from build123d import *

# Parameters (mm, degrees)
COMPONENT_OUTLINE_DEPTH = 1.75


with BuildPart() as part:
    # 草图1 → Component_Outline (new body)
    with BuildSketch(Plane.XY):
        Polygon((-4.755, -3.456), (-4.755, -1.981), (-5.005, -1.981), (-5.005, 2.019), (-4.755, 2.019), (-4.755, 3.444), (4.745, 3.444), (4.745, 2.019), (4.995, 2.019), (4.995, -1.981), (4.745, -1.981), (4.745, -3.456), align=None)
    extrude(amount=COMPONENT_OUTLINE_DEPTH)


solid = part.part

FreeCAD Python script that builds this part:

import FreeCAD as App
import Part
import Sketcher

doc = App.newDocument("Part")
params = doc.addObject("Spreadsheet::Sheet", "Params")
for row, (alias, value) in enumerate([
    ("sketch1_height", "4 mm"),
    ("sketch1_width", "9.5 mm"),
    ("sketch1_width2", "0.25 mm"),
    ("pad1_length", "1.75 mm"),
], start=1):
    params.set(f"A{row}", alias)
    params.set(f"B{row}", "=" + value)
    params.setAlias(f"B{row}", alias)

body = doc.addObject("PartDesign::Body", "Body")

# Sketch on XY plane
sketch1 = body.newObject("Sketcher::SketchObject", "Sketch")
sketch1.AttachmentSupport = (doc.getObject("XY_Plane"), [""])
sketch1.MapMode = "FlatFace"
sketch1.addGeometry(Part.LineSegment(App.Vector(-4.75, -1.98, 0), App.Vector(-4.75, -3.46, 0)), False)
sketch1.addGeometry(Part.LineSegment(App.Vector(-4.75, -3.46, 0), App.Vector(4.75, -3.46, 0)), False)
sketch1.addGeometry(Part.LineSegment(App.Vector(4.75, -3.46, 0), App.Vector(4.75, -1.98, 0)), False)
sketch1.addGeometry(Part.LineSegment(App.Vector(4.75, -1.98, 0), App.Vector(5, -1.98, 0)), False)
sketch1.addGeometry(Part.LineSegment(App.Vector(5, -1.98, 0), App.Vector(5, 2.02, 0)), False)
sketch1.addGeometry(Part.LineSegment(App.Vector(5, 2.02, 0), App.Vector(4.75, 2.02, 0)), False)
sketch1.addGeometry(Part.LineSegment(App.Vector(4.75, 2.02, 0), App.Vector(4.75, 3.44, 0)), False)
sketch1.addGeometry(Part.LineSegment(App.Vector(4.75, 3.44, 0), App.Vector(-4.75, 3.44, 0)), False)
sketch1.addGeometry(Part.LineSegment(App.Vector(-4.75, 3.44, 0), App.Vector(-4.75, 2.02, 0)), False)
sketch1.addGeometry(Part.LineSegment(App.Vector(-4.75, 2.02, 0), App.Vector(-5, 2.02, 0)), False)
sketch1.addGeometry(Part.LineSegment(App.Vector(-5, 2.02, 0), App.Vector(-5, -1.98, 0)), False)
sketch1.addGeometry(Part.LineSegment(App.Vector(-5, -1.98, 0), App.Vector(-4.75, -1.98, 0)), False)
sketch1.addConstraint(Sketcher.Constraint("Coincident", 0, 2, 1, 1))
sketch1.addConstraint(Sketcher.Constraint("Coincident", 1, 2, 2, 1))
sketch1.addConstraint(Sketcher.Constraint("Coincident", 2, 2, 3, 1))
sketch1.addConstraint(Sketcher.Constraint("Coincident", 3, 2, 4, 1))
sketch1.addConstraint(Sketcher.Constraint("Coincident", 4, 2, 5, 1))
sketch1.addConstraint(Sketcher.Constraint("Coincident", 5, 2, 6, 1))
sketch1.addConstraint(Sketcher.Constraint("Coincident", 6, 2, 7, 1))
sketch1.addConstraint(Sketcher.Constraint("Coincident", 7, 2, 8, 1))
sketch1.addConstraint(Sketcher.Constraint("Coincident", 8, 2, 9, 1))
sketch1.addConstraint(Sketcher.Constraint("Coincident", 9, 2, 10, 1))
sketch1.addConstraint(Sketcher.Constraint("Coincident", 10, 2, 11, 1))
sketch1.addConstraint(Sketcher.Constraint("Coincident", 11, 2, 0, 1))
sketch1.addConstraint(Sketcher.Constraint("Vertical", 0))
sketch1.addConstraint(Sketcher.Constraint("Horizontal", 1))
sketch1.addConstraint(Sketcher.Constraint("Vertical", 2))
sketch1.addConstraint(Sketcher.Constraint("Horizontal", 3))
sketch1.addConstraint(Sketcher.Constraint("Vertical", 4))
sketch1.addConstraint(Sketcher.Constraint("Horizontal", 5))
sketch1.addConstraint(Sketcher.Constraint("Vertical", 6))
sketch1.addConstraint(Sketcher.Constraint("Horizontal", 7))
sketch1.addConstraint(Sketcher.Constraint("Vertical", 8))
sketch1.addConstraint(Sketcher.Constraint("Horizontal", 9))
sketch1.addConstraint(Sketcher.Constraint("Vertical", 10))
sketch1.addConstraint(Sketcher.Constraint("Horizontal", 11))
sketch1.addConstraint(Sketcher.Constraint("Horizontal", 5, 2, 8, 2))
sketch1.addConstraint(Sketcher.Constraint("Horizontal", 3, 2, 10, 2))
sketch1.addConstraint(Sketcher.Constraint("Vertical", 2, 2, 5, 2))
sketch1.addConstraint(Sketcher.Constraint("Vertical", 0, 2, 7, 2))
sketch1.addConstraint(Sketcher.Constraint("Equal", 5, 9))
sketch1.addConstraint(Sketcher.Constraint("DistanceY", 4, 1, 4, 2, 4.0))
sketch1.addConstraint(Sketcher.Constraint("DistanceX", 1, 1, 1, 2, 9.5))
sketch1.addConstraint(Sketcher.Constraint("DistanceX", 3, 1, 3, 2, 0.25))
sketch1.addConstraint(Sketcher.Constraint("DistanceY", 1, 2, 6, 2, 6.9))
sketch1.addConstraint(Sketcher.Constraint("DistanceY", 0, 2, 0, 1, 1.475))
sketch1.addConstraint(Sketcher.Constraint("DistanceX", 0, 2, -1, 1, 4.755))
sketch1.addConstraint(Sketcher.Constraint("DistanceY", 0, 2, -1, 1, 3.456))
sketch1.setExpression("Constraints[29]", "Params.sketch1_height")
sketch1.setExpression("Constraints[30]", "Params.sketch1_width")
sketch1.setExpression("Constraints[31]", "Params.sketch1_width2")
pad1 = body.newObject("PartDesign::Pad", "Pad")
pad1.Profile = sketch1
pad1.setExpression("Length", "Params.pad1_length")

doc.recompute()
